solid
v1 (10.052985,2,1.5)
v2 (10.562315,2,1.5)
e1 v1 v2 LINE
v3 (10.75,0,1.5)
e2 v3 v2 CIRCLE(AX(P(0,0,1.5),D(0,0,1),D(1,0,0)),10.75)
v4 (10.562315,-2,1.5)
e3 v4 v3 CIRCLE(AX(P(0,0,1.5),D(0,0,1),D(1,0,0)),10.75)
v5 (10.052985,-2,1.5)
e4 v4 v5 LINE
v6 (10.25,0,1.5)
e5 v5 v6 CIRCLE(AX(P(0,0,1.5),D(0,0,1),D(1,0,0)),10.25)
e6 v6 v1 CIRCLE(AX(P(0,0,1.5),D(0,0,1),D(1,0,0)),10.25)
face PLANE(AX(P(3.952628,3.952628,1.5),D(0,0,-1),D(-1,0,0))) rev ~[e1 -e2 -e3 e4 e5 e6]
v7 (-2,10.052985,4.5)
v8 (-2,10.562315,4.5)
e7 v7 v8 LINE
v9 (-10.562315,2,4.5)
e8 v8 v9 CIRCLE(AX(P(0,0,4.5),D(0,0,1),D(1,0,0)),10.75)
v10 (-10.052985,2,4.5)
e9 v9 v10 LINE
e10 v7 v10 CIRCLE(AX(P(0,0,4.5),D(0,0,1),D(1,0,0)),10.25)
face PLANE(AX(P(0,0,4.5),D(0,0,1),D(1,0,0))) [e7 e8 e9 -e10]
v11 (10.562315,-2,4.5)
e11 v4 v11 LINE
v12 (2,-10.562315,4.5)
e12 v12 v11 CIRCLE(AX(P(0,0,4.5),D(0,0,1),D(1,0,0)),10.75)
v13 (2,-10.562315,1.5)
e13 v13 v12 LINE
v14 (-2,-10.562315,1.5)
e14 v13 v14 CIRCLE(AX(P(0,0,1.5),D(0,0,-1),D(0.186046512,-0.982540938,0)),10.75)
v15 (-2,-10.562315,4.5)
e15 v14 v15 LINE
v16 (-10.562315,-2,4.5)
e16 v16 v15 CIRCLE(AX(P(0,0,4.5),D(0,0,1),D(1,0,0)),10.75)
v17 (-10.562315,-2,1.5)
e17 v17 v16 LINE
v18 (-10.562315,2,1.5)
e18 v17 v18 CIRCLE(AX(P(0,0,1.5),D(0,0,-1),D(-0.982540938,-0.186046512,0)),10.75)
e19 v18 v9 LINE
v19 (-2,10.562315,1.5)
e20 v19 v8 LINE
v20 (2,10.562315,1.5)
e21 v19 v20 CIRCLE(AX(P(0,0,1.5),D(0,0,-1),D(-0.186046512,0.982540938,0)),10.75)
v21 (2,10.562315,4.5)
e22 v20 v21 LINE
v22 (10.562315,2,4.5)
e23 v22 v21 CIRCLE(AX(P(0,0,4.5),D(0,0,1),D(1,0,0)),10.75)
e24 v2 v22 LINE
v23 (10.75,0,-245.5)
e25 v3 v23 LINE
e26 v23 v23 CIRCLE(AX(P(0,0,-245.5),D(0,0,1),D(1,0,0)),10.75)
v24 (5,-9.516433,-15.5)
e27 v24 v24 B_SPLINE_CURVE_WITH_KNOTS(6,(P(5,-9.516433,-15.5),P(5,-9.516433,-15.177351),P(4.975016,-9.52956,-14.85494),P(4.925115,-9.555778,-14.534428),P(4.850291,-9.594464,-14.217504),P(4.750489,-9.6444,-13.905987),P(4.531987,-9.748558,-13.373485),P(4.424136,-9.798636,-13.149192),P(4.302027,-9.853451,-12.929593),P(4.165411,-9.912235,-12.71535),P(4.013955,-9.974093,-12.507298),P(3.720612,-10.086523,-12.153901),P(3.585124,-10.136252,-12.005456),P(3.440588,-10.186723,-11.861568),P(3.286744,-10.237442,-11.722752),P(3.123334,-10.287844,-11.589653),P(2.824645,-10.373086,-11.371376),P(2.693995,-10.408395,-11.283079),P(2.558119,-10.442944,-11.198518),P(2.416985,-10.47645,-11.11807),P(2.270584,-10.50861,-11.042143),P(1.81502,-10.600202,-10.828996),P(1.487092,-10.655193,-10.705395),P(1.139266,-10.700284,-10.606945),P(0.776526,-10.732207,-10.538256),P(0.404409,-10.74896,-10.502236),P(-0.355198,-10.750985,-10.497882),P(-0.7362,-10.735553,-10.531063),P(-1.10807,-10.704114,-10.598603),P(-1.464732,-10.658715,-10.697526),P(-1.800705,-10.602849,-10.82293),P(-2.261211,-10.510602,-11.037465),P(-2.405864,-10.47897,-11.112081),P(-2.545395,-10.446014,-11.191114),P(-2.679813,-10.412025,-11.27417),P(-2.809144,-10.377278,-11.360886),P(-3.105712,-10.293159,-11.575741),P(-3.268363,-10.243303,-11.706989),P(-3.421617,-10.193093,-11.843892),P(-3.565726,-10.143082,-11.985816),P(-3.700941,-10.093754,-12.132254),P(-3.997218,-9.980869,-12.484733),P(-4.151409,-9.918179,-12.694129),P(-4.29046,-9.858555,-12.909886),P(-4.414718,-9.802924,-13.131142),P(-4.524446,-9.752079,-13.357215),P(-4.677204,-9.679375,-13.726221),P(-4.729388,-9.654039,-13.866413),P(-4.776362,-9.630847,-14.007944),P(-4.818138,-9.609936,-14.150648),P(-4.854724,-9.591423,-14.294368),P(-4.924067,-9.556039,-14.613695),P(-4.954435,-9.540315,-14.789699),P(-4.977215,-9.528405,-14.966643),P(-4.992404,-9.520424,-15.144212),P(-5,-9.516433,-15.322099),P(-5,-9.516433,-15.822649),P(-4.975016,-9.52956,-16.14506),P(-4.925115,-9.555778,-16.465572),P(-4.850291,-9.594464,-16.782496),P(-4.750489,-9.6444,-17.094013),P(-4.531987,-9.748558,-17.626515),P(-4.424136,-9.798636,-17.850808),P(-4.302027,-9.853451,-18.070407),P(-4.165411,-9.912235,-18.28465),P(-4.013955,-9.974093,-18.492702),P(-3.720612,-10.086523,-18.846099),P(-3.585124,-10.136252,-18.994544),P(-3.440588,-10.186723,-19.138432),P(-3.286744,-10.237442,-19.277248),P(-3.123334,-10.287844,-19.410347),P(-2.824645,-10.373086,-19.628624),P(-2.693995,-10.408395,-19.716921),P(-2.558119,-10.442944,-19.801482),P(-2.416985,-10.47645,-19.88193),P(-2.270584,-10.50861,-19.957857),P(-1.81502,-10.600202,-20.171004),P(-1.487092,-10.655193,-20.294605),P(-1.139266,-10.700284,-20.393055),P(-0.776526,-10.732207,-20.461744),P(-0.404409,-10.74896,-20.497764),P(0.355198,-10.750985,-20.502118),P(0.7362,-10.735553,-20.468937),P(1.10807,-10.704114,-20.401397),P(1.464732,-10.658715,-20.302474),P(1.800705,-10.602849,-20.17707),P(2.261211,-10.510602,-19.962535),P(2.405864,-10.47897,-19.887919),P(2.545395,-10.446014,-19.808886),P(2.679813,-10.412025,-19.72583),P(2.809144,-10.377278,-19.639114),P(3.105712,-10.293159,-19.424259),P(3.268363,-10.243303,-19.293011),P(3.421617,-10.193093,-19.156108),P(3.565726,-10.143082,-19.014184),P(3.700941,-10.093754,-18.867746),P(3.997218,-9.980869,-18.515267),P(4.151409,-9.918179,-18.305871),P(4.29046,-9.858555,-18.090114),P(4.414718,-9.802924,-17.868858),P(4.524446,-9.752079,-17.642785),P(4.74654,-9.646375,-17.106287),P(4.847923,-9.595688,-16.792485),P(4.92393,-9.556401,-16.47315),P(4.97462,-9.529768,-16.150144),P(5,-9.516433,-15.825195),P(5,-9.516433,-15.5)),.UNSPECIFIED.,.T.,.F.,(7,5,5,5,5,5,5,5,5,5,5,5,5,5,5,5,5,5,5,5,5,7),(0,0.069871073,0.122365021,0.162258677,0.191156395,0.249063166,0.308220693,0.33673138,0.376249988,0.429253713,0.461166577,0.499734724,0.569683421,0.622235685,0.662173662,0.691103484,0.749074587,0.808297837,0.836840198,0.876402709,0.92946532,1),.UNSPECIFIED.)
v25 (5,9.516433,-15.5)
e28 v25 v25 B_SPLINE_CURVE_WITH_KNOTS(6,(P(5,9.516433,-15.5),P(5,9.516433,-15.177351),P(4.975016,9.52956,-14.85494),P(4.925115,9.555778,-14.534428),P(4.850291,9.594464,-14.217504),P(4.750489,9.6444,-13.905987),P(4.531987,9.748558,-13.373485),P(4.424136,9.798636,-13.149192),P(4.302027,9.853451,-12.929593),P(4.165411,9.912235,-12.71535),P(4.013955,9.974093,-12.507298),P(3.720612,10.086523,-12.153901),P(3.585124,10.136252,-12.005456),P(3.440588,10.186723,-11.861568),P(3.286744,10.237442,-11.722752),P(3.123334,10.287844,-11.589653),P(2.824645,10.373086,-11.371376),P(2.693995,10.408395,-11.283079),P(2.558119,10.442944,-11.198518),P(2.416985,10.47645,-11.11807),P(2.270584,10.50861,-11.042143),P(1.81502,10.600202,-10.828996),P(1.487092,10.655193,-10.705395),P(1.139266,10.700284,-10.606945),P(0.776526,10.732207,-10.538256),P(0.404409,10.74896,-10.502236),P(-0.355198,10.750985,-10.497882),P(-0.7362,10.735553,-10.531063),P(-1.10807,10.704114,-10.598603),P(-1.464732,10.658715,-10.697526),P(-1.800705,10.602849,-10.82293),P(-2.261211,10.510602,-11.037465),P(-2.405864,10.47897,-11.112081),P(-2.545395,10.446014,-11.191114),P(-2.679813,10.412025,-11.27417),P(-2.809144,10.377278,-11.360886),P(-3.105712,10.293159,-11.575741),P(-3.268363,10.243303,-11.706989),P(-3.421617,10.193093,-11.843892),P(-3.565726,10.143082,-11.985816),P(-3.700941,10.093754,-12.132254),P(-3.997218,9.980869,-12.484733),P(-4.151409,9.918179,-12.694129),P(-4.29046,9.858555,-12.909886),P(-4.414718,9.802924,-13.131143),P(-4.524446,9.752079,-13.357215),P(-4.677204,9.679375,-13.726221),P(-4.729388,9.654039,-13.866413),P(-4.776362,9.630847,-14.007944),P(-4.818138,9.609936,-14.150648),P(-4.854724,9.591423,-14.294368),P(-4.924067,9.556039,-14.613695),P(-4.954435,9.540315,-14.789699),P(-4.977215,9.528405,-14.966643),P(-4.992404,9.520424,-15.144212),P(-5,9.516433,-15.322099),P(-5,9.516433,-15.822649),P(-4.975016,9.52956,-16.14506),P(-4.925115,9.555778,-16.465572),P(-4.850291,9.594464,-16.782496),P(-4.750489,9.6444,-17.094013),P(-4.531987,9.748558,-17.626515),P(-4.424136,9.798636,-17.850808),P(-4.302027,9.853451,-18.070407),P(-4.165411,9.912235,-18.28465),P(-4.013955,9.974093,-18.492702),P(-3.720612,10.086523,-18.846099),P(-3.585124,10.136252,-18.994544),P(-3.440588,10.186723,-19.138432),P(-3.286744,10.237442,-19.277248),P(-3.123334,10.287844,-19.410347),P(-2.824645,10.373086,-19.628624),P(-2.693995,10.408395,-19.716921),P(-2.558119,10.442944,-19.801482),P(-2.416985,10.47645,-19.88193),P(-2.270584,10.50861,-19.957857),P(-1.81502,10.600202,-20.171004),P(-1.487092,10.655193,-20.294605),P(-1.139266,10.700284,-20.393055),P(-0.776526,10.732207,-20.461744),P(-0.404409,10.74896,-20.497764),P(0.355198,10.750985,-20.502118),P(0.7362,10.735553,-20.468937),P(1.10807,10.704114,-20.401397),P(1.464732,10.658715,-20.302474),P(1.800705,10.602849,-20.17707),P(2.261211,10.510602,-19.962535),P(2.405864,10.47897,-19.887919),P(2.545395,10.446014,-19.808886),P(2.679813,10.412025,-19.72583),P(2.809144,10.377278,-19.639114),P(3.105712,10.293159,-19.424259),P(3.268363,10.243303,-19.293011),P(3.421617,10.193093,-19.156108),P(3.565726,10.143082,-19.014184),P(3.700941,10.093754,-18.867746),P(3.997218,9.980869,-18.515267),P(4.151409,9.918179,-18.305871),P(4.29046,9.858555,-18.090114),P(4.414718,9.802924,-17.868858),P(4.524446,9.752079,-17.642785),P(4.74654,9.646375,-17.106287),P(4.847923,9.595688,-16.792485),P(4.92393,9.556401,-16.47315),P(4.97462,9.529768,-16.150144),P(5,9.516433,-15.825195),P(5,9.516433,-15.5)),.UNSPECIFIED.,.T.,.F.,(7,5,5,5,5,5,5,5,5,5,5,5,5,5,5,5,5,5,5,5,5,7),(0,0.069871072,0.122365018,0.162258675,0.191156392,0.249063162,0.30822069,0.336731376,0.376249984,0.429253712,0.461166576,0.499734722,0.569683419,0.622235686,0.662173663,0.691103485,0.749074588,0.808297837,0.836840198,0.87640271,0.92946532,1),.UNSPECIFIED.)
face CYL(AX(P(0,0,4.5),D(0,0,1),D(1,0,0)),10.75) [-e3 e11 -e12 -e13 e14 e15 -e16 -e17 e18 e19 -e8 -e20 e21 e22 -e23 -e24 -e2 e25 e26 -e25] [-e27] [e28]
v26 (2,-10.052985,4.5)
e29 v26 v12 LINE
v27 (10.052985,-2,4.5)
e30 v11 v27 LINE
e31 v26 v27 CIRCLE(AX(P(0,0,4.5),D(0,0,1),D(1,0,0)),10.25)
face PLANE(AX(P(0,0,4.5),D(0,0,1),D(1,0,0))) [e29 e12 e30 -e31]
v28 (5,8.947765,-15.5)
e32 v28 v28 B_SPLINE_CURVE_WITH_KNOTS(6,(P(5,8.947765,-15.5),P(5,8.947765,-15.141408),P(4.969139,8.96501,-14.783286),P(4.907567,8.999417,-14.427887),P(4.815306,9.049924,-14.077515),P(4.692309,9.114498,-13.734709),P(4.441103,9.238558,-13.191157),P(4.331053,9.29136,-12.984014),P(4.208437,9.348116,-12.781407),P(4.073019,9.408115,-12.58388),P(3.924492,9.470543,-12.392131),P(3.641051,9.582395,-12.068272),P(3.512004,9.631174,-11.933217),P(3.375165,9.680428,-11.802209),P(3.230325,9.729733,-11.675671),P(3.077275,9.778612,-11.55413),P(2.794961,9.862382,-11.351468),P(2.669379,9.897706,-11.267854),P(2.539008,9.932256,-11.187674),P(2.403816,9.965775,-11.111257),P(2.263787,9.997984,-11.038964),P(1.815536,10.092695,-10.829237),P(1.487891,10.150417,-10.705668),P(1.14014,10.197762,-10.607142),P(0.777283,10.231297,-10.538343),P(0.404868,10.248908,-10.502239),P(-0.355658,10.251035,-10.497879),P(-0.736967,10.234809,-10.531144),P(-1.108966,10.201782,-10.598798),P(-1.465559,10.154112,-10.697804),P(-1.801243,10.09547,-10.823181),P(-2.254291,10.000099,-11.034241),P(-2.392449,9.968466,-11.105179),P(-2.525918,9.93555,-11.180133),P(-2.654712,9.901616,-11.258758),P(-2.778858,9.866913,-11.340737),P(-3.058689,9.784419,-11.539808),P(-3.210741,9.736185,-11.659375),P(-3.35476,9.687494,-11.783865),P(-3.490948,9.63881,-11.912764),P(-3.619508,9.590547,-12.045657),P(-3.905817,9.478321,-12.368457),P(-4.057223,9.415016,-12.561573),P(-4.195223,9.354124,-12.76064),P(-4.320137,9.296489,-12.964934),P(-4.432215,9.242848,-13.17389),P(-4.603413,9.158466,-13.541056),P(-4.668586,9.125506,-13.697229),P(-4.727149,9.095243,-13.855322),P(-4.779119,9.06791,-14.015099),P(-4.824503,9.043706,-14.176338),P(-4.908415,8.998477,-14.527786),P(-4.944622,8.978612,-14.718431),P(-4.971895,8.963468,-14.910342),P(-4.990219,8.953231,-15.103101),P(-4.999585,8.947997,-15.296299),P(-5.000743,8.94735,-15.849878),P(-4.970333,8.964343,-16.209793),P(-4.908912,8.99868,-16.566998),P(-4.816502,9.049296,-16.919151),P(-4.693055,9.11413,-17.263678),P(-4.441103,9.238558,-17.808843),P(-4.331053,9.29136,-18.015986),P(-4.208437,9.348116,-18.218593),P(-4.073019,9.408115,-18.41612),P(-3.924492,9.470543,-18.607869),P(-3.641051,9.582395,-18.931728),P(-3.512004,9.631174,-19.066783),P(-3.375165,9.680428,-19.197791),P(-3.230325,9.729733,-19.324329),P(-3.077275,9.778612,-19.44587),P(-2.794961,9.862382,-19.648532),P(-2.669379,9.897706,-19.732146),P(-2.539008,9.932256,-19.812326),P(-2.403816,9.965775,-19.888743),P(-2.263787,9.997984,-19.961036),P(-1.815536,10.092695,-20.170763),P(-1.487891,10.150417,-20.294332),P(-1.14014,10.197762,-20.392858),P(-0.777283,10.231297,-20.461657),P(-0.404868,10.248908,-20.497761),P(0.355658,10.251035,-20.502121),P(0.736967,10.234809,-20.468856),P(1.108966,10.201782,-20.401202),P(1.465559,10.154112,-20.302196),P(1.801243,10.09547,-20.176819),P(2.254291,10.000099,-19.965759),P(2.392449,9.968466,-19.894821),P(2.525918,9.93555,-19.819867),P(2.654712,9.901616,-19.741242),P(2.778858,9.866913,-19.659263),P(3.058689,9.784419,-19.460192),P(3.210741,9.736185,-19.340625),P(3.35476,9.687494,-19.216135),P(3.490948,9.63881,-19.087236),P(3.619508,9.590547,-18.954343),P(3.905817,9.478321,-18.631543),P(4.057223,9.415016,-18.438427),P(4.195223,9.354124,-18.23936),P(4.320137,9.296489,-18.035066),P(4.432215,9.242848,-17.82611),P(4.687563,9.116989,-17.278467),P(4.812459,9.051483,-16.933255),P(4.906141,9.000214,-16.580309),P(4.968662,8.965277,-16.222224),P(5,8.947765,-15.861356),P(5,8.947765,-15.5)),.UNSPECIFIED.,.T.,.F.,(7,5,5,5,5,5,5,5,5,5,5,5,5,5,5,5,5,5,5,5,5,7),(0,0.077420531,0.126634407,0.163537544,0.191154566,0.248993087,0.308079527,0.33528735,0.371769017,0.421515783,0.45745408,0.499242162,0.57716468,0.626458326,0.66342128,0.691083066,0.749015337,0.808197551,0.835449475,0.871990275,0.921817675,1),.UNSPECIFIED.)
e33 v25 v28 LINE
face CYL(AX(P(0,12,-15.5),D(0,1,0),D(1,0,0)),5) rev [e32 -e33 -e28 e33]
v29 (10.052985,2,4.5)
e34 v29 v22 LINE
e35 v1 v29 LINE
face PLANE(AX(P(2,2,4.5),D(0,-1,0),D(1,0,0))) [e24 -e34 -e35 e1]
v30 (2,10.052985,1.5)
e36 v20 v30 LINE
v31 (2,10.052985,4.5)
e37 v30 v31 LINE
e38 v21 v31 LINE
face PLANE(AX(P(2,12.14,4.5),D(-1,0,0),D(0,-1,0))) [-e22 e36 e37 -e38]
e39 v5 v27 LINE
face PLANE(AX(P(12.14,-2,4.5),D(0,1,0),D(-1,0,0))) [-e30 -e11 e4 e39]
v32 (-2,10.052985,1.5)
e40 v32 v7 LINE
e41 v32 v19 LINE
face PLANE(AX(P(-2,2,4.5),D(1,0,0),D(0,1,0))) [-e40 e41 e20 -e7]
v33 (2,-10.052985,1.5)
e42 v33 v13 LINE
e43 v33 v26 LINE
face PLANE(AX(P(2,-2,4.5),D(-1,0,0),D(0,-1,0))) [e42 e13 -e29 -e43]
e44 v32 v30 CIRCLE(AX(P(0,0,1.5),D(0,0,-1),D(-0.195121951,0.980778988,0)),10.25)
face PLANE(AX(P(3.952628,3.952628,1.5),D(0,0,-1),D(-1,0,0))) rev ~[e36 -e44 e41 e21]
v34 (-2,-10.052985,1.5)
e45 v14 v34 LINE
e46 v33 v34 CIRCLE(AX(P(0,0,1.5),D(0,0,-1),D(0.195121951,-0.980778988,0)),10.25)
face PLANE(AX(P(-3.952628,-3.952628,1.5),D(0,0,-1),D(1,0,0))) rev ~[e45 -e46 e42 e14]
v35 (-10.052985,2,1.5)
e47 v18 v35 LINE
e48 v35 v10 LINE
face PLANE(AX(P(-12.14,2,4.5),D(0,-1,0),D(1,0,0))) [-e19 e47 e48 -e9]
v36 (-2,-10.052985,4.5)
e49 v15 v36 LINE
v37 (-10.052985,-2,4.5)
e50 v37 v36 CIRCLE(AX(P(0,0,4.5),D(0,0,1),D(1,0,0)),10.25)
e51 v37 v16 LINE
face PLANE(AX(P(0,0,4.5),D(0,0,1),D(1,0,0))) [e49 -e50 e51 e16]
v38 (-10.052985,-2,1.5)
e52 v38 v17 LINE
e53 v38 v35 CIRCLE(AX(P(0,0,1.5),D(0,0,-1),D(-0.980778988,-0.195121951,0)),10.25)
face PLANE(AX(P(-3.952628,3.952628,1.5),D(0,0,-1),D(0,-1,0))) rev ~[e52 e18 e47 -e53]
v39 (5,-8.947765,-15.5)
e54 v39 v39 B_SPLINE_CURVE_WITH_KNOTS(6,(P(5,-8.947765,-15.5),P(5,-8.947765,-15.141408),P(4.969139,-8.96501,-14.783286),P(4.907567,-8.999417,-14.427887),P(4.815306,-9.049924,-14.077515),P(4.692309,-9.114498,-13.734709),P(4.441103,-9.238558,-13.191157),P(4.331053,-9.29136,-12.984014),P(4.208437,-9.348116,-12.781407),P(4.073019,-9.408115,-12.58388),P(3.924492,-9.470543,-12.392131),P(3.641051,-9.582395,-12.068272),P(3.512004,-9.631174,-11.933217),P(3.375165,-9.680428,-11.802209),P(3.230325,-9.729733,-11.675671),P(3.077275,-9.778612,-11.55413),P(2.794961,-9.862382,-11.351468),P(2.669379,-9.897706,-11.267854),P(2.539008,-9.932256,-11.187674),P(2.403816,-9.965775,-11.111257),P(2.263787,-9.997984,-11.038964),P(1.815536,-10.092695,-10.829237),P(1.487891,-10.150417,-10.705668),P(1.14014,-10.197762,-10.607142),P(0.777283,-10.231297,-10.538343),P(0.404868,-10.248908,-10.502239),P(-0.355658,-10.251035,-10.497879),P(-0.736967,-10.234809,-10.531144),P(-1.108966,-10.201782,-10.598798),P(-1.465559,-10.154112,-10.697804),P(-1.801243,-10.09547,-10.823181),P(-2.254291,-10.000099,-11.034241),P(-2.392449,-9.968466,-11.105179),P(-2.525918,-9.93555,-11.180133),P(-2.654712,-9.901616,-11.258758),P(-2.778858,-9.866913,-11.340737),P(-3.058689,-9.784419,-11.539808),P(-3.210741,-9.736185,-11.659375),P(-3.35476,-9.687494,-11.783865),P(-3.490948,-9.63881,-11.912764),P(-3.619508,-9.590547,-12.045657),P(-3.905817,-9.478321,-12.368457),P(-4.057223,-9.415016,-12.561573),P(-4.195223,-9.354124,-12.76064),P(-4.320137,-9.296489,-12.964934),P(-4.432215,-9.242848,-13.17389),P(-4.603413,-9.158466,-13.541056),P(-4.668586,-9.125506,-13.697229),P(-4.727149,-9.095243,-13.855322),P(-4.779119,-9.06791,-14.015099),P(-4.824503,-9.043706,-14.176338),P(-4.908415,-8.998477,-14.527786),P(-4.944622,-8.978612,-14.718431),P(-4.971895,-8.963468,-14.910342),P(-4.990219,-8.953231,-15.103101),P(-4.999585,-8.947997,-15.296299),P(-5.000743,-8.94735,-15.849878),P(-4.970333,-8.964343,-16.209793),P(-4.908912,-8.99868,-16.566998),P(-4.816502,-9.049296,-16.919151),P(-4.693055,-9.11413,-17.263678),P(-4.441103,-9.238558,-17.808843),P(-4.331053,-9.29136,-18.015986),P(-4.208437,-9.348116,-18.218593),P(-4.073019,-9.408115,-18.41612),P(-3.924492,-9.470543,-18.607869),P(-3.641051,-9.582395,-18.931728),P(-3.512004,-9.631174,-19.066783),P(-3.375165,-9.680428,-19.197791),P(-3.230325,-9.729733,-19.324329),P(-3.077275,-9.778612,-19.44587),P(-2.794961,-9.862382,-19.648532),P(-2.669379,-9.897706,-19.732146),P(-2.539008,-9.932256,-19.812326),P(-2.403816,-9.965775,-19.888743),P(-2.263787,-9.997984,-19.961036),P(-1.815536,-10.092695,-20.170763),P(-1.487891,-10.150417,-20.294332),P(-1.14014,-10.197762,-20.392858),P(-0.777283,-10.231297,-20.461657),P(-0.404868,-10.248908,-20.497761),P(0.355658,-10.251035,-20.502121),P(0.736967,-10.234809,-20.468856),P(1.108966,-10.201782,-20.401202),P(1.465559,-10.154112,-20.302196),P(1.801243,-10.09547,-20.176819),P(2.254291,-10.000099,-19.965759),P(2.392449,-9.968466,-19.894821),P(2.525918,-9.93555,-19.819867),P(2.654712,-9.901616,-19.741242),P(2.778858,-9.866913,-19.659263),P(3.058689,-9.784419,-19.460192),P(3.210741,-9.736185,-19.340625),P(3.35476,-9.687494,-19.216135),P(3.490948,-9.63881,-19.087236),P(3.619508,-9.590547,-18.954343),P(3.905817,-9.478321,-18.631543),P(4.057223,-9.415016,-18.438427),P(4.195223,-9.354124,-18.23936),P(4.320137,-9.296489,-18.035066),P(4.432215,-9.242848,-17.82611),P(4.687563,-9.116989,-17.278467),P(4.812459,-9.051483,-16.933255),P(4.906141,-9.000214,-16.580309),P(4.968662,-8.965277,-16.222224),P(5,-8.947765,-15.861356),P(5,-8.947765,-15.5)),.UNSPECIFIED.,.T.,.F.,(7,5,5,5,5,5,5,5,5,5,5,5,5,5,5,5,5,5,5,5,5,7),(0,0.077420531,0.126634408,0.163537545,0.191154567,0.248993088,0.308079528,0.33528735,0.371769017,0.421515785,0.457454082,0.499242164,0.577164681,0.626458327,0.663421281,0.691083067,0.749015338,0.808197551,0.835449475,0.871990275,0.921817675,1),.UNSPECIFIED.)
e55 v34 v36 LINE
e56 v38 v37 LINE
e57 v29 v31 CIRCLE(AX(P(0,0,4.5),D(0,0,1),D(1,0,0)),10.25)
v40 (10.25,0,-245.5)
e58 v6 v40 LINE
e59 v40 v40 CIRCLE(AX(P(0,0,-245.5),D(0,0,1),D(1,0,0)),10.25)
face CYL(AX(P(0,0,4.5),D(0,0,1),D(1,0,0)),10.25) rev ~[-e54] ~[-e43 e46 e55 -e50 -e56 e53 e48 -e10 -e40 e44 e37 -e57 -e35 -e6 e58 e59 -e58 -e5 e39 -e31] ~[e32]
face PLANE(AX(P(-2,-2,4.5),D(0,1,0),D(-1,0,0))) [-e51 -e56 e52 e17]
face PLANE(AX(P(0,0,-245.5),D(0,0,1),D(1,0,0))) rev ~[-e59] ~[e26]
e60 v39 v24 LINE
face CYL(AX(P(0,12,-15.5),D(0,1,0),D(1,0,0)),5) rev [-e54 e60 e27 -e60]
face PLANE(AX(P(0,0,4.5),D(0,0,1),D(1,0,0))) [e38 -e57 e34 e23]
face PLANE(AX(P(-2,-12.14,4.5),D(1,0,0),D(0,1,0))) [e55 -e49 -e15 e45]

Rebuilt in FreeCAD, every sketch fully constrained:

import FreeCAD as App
import Part
import Sketcher

V = App.Vector
Q = App.Units.Quantity

doc = App.newDocument("Part")
body = doc.addObject("PartDesign::Body", "Body")

sketch1 = body.newObject("Sketcher::SketchObject", "Sketch")
sketch1.AttachmentSupport = (doc.getObject("XY_Plane"), [""])
sketch1.MapMode = "FlatFace"
sketch1.addGeometry(Part.Circle(V(0, 0, 0), V(0, 0, 1), 11), False)
sketch1.addGeometry(Part.Circle(V(0, 0, 0), V(0, 0, 1), 10), False)
sketch1.addConstraint(Sketcher.Constraint("Coincident", 0, 3, -1, 1))
sketch1.addConstraint(Sketcher.Constraint("Coincident", 1, 3, -1, 1))
sketch1.addConstraint(Sketcher.Constraint("Diameter", 0, Q("21.5 mm")))
sketch1.addConstraint(Sketcher.Constraint("Diameter", 1, Q("20.5 mm")))
pad1 = body.newObject("PartDesign::Pad", "Pad")
pad1.Profile = sketch1
pad1.Length = 250
pad1.Reversed = True

sketch2 = body.newObject("Sketcher::SketchObject", "Sketch001")
sketch2.AttachmentSupport = (doc.getObject("XY_Plane"), [""])
sketch2.MapMode = "FlatFace"
sketch2.addGeometry(Part.LineSegment(V(2, 12.1, 0), V(0, 12.1, 0)), False)
sketch2.addGeometry(Part.LineSegment(V(0, 12.1, 0), V(0, 0, 0)), False)
sketch2.addGeometry(Part.LineSegment(V(0, 0, 0), V(12.1, 0, 0)), False)
sketch2.addGeometry(Part.LineSegment(V(12.1, 0, 0), V(12.1, 2, 0)), False)
sketch2.addGeometry(Part.LineSegment(V(12.1, 2, 0), V(2, 2, 0)), False)
sketch2.addGeometry(Part.LineSegment(V(2, 2, 0), V(2, 12.1, 0)), False)
sketch2.addConstraint(Sketcher.Constraint("Coincident", 0, 2, 1, 1))
sketch2.addConstraint(Sketcher.Constraint("Coincident", 1, 2, 2, 1))
sketch2.addConstraint(Sketcher.Constraint("Coincident", 2, 2, 3, 1))
sketch2.addConstraint(Sketcher.Constraint("Coincident", 3, 2, 4, 1))
sketch2.addConstraint(Sketcher.Constraint("Coincident", 4, 2, 5, 1))
sketch2.addConstraint(Sketcher.Constraint("Coincident", 5, 2, 0, 1))
sketch2.addConstraint(Sketcher.Constraint("Horizontal", 0))
sketch2.addConstraint(Sketcher.Constraint("Vertical", 1))
sketch2.addConstraint(Sketcher.Constraint("Horizontal", 2))
sketch2.addConstraint(Sketcher.Constraint("Vertical", 3))
sketch2.addConstraint(Sketcher.Constraint("Horizontal", 4))
sketch2.addConstraint(Sketcher.Constraint("Vertical", 5))
sketch2.addConstraint(Sketcher.Constraint("Coincident", 1, 2, -1, 1))
sketch2.addConstraint(Sketcher.Constraint("Equal", 2, 1))
sketch2.addConstraint(Sketcher.Constraint("Equal", 0, 3))
sketch2.addConstraint(Sketcher.Constraint("DistanceX", 0, 2, 0, 1, Q("2 mm")))
sketch2.addConstraint(Sketcher.Constraint("DistanceX", 2, 1, 2, 2, Q("12.14 mm")))
pocket1 = body.newObject("PartDesign::Pocket", "Pocket")
pocket1.Profile = sketch2
pocket1.Length = 3
doc.recompute()

polarpattern = body.newObject("PartDesign::PolarPattern", "PolarPattern")
polarpattern.Originals = [pocket1]
polarpattern.Axis = (doc.getObject("Z_Axis"), [""])
polarpattern.Angle = 360
polarpattern.Occurrences = 4
body.Tip = polarpattern

sketch3 = body.newObject("Sketcher::SketchObject", "Sketch002")
sketch3.AttachmentSupport = (doc.getObject("XZ_Plane"), [""])
sketch3.MapMode = "FlatFace"
sketch3.AttachmentOffset = App.Placement(V(0, 0, -12), App.Rotation())
sketch3.addGeometry(Part.Circle(V(0, -20, 0), V(0, 0, 1), 5), False)
sketch3.addConstraint(Sketcher.Constraint("PointOnObject", 0, 3, -2))
sketch3.addConstraint(Sketcher.Constraint("Diameter", 0, Q("10 mm")))
sketch3.addConstraint(Sketcher.Constraint("DistanceY", 0, 3, -1, 1, Q("20 mm")))
pocket2 = body.newObject("PartDesign::Pocket", "Pocket001")
pocket2.Profile = sketch3
pocket2.Length = 24
pocket2.Reversed = True
body2 = doc.addObject("PartDesign::Body", "Body001")
doc.recompute()

body.Placement = App.Placement(V(0, 0, 4.5), App.Rotation(V(0, 0, 1), 0))
boolean = body2.newObject("PartDesign::Boolean", "Boolean")
boolean.Type = "Fuse"
boolean.addObjects([body])

doc.recompute()
